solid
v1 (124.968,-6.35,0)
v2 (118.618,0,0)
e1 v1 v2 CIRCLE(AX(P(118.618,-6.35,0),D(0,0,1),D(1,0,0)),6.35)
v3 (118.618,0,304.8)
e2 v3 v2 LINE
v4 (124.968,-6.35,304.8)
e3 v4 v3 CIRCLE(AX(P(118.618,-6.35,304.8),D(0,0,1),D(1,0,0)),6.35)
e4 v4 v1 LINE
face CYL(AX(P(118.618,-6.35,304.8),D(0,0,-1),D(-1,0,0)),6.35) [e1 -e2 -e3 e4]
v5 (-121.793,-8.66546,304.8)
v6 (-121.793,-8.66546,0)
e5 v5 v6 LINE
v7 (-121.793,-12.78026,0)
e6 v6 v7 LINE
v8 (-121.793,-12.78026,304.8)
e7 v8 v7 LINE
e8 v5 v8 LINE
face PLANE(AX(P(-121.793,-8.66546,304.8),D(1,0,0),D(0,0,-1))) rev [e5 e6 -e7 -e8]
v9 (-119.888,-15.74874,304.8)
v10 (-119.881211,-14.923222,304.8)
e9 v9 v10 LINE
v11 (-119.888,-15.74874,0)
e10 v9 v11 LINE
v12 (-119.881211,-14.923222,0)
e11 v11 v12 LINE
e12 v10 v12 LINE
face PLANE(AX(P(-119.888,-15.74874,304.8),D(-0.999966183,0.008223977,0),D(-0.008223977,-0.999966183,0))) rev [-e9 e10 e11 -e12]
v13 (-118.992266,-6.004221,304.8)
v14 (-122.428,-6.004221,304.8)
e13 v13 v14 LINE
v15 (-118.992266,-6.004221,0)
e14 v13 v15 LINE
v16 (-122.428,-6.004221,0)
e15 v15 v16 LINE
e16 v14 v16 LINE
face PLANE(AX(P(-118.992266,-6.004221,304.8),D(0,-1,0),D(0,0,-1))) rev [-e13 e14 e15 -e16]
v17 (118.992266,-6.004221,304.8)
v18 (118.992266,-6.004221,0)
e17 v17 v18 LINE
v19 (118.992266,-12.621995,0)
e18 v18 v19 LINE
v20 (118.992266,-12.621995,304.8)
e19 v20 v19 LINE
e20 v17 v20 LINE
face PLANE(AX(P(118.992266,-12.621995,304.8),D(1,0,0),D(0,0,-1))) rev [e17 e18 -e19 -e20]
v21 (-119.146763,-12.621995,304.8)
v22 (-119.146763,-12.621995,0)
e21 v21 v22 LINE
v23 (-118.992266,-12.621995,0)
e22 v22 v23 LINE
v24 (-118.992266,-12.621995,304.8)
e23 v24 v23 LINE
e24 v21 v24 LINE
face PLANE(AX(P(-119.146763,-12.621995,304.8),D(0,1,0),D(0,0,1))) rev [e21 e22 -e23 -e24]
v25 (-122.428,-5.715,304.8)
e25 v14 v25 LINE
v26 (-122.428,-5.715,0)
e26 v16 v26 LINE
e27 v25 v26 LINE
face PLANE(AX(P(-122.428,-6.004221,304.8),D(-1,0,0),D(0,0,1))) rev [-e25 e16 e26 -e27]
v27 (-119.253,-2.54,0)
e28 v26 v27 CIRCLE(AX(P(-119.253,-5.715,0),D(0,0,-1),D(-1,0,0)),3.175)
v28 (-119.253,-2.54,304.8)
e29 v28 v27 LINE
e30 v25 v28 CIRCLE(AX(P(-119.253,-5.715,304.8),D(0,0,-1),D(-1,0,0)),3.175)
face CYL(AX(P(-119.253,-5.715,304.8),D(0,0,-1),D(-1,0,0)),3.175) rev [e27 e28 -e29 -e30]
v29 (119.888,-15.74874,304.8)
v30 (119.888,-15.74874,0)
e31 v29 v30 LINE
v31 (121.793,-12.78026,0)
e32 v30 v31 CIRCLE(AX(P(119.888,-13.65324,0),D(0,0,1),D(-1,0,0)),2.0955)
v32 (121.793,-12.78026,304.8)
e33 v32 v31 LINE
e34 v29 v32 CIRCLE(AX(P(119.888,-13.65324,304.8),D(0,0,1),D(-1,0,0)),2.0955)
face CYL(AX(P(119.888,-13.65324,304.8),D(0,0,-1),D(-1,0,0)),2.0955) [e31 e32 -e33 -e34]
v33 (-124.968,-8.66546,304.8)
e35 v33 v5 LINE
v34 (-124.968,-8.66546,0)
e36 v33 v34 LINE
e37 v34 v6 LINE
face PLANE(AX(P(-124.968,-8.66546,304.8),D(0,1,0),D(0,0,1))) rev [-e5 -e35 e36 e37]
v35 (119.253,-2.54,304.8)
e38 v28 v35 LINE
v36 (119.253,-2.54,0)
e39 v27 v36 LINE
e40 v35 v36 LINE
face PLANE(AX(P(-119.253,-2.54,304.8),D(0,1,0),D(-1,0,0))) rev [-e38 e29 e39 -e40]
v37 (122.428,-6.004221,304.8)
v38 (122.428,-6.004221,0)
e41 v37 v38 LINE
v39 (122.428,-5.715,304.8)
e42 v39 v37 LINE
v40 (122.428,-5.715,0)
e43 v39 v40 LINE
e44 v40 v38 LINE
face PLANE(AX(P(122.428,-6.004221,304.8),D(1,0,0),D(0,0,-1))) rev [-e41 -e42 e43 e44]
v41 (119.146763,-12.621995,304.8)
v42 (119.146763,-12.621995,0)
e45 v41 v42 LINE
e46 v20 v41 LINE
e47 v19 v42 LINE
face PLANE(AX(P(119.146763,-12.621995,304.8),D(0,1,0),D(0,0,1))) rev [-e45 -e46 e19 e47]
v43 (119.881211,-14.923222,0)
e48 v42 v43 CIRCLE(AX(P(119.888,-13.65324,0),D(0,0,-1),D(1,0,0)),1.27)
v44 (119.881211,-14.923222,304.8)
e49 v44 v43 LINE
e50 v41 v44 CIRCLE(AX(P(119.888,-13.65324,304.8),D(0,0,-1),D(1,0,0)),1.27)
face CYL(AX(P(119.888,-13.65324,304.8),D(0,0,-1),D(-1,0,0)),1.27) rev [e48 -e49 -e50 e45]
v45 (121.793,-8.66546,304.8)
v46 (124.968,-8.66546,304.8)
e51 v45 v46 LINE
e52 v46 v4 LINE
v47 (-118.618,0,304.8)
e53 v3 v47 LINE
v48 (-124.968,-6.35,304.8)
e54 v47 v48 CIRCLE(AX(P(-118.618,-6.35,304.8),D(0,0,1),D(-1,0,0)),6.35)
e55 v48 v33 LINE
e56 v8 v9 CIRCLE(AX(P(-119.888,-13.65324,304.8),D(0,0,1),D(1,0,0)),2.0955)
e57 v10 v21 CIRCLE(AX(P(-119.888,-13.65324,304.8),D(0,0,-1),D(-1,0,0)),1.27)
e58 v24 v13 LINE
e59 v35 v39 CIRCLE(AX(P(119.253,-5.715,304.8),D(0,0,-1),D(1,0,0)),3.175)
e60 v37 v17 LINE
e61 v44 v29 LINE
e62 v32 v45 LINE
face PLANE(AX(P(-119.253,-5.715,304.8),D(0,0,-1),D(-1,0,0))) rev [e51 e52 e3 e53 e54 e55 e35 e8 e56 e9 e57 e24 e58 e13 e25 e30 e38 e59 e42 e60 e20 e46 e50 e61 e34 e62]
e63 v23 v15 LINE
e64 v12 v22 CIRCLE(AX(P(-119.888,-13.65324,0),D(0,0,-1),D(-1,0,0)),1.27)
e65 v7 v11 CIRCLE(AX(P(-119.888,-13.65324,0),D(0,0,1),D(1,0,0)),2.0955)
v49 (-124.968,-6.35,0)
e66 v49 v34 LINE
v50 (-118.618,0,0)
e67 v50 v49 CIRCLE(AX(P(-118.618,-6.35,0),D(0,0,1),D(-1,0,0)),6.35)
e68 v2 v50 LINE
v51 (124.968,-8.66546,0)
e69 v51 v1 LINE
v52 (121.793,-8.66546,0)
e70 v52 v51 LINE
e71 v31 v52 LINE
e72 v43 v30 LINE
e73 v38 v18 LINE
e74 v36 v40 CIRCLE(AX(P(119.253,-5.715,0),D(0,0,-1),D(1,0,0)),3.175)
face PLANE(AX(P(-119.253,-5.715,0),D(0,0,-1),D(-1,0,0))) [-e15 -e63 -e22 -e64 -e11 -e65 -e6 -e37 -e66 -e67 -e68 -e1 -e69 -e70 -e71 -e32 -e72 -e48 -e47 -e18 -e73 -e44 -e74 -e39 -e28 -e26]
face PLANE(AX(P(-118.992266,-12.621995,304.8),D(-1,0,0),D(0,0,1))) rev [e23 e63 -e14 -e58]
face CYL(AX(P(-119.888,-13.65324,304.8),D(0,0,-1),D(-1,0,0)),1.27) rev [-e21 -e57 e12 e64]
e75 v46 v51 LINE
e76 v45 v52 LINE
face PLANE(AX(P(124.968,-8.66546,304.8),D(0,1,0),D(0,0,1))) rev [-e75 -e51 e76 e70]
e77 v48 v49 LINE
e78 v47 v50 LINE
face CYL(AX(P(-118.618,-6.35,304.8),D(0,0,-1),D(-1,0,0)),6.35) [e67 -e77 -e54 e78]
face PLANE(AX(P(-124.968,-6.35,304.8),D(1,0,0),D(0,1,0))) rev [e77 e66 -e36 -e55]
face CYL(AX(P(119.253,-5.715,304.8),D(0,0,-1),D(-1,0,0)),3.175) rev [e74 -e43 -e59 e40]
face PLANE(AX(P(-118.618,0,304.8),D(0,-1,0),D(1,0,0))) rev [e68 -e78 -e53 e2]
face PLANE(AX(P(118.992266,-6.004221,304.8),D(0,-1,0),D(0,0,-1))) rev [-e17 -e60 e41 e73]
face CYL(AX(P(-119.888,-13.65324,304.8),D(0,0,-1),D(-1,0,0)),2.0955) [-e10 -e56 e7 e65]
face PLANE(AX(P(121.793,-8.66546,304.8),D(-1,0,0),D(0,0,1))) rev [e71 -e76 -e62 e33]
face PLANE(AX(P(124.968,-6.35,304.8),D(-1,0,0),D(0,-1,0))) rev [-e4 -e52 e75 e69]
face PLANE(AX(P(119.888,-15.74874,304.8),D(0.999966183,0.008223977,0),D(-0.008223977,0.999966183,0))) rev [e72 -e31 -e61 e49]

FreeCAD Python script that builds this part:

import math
import FreeCAD as App
import Part
import Sketcher
Q = App.Units.Quantity

doc = App.newDocument("Part")
body = doc.addObject("PartDesign::Body", "Body")

# Sketch on XY plane
sketch1 = body.newObject("Sketcher::SketchObject", "Sketch")
sketch1.AttachmentSupport = (doc.getObject("XY_Plane"), [""])
sketch1.MapMode = "FlatFace"
sketch1.addGeometry([
    Part.LineSegment(App.Vector(-119.888, -15.74874, 0), App.Vector(-119.881211, -14.923222, 0)),  # 0
    Part.ArcOfCircle(Part.Circle(App.Vector(-119.888, -13.65324, 0), App.Vector(0, 0, 1), 1.27), math.radians(54.292223), math.radians(270.306298)),  # 1
    Part.LineSegment(App.Vector(-119.146763, -12.621995, 0), App.Vector(-118.992266, -12.621995, 0)),  # 2
    Part.LineSegment(App.Vector(-118.992266, -12.621995, 0), App.Vector(-118.992266, -6.004221, 0)),  # 3
    Part.LineSegment(App.Vector(-118.992266, -6.004221, 0), App.Vector(-122.428, -6.004221, 0)),  # 4
    Part.LineSegment(App.Vector(-122.428, -6.004221, 0), App.Vector(-122.428, -5.715, 0)),  # 5
    Part.ArcOfCircle(Part.Circle(App.Vector(-119.253, -5.715, 0), App.Vector(0, 0, 1), 3.175), math.radians(90), math.radians(180)),  # 6
    Part.LineSegment(App.Vector(-119.253, -2.54, 0), App.Vector(119.253, -2.54, 0)),  # 7
    Part.ArcOfCircle(Part.Circle(App.Vector(119.253, -5.715, 0), App.Vector(0, 0, 1), 3.175), math.radians(0), math.radians(90)),  # 8
    Part.LineSegment(App.Vector(122.428, -5.715, 0), App.Vector(122.428, -6.004221, 0)),  # 9
    Part.LineSegment(App.Vector(122.428, -6.004221, 0), App.Vector(118.992266, -6.004221, 0)),  # 10
    Part.LineSegment(App.Vector(118.992266, -6.004221, 0), App.Vector(118.992266, -12.621995, 0)),  # 11
    Part.LineSegment(App.Vector(118.992266, -12.621995, 0), App.Vector(119.146763, -12.621995, 0)),  # 12
    Part.ArcOfCircle(Part.Circle(App.Vector(119.888, -13.65324, 0), App.Vector(0, 0, 1), 1.27), math.radians(-90.306298), math.radians(125.707777)),  # 13
    Part.LineSegment(App.Vector(119.881211, -14.923222, 0), App.Vector(119.888, -15.74874, 0)),  # 14
    Part.ArcOfCircle(Part.Circle(App.Vector(119.888, -13.65324, 0), App.Vector(0, 0, 1), 2.0955), math.radians(-90), math.radians(24.619977)),  # 15
    Part.LineSegment(App.Vector(121.793, -12.78026, 0), App.Vector(121.793, -8.66546, 0)),  # 16
    Part.LineSegment(App.Vector(121.793, -8.66546, 0), App.Vector(124.968, -8.66546, 0)),  # 17
    Part.LineSegment(App.Vector(124.968, -8.66546, 0), App.Vector(124.968, -6.35, 0)),  # 18
    Part.ArcOfCircle(Part.Circle(App.Vector(118.618, -6.35, 0), App.Vector(0, 0, 1), 6.35), math.radians(0), math.radians(90)),  # 19
    Part.LineSegment(App.Vector(118.618, 0, 0), App.Vector(-118.618, 0, 0)),  # 20
    Part.ArcOfCircle(Part.Circle(App.Vector(-118.618, -6.35, 0), App.Vector(0, 0, 1), 6.35), math.radians(90), math.radians(180)),  # 21
    Part.LineSegment(App.Vector(-124.968, -6.35, 0), App.Vector(-124.968, -8.66546, 0)),  # 22
    Part.LineSegment(App.Vector(-124.968, -8.66546, 0), App.Vector(-121.793, -8.66546, 0)),  # 23
    Part.LineSegment(App.Vector(-121.793, -8.66546, 0), App.Vector(-121.793, -12.78026, 0)),  # 24
    Part.ArcOfCircle(Part.Circle(App.Vector(-119.888, -13.65324, 0), App.Vector(0, 0, 1), 2.0955), math.radians(155.380023), math.radians(270)),  # 25
], False)
sketch1.addConstraint([
    Sketcher.Constraint("Coincident", 0, 2, 1, 2),
    Sketcher.Constraint("Coincident", 1, 1, 2, 1),
    Sketcher.Constraint("Coincident", 2, 2, 3, 1),
    Sketcher.Constraint("Coincident", 3, 2, 4, 1),
    Sketcher.Constraint("Coincident", 4, 2, 5, 1),
    Sketcher.Constraint("Tangent", 5, 2, 6, 2),
    Sketcher.Constraint("Tangent", 6, 1, 7, 1),
    Sketcher.Constraint("Tangent", 7, 2, 8, 2),
    Sketcher.Constraint("Tangent", 8, 1, 9, 1),
    Sketcher.Constraint("Coincident", 9, 2, 10, 1),
    Sketcher.Constraint("Coincident", 10, 2, 11, 1),
    Sketcher.Constraint("Coincident", 11, 2, 12, 1),
    Sketcher.Constraint("Coincident", 12, 2, 13, 2),
    Sketcher.Constraint("Coincident", 13, 1, 14, 1),
    Sketcher.Constraint("Coincident", 14, 2, 15, 1),
    Sketcher.Constraint("Coincident", 15, 2, 16, 1),
    Sketcher.Constraint("Coincident", 16, 2, 17, 1),
    Sketcher.Constraint("Coincident", 17, 2, 18, 1),
    Sketcher.Constraint("Tangent", 18, 2, 19, 1),
    Sketcher.Constraint("Tangent", 19, 2, 20, 1),
    Sketcher.Constraint("Tangent", 20, 2, 21, 1),
    Sketcher.Constraint("Tangent", 21, 2, 22, 1),
    Sketcher.Constraint("Coincident", 22, 2, 23, 1),
    Sketcher.Constraint("Coincident", 23, 2, 24, 1),
    Sketcher.Constraint("Coincident", 24, 2, 25, 1),
    Sketcher.Constraint("Coincident", 25, 2, 0, 1),
    Sketcher.Constraint("Horizontal", 2),
    Sketcher.Constraint("Vertical", 3),
    Sketcher.Constraint("Horizontal", 4),
    Sketcher.Constraint("Vertical", 5),
    Sketcher.Constraint("Horizontal", 7),
    Sketcher.Constraint("Vertical", 9),
    Sketcher.Constraint("Horizontal", 10),
    Sketcher.Constraint("Vertical", 11),
    Sketcher.Constraint("Horizontal", 12),
    Sketcher.Constraint("Vertical", 16),
    Sketcher.Constraint("Horizontal", 17),
    Sketcher.Constraint("Vertical", 18),
    Sketcher.Constraint("Horizontal", 20),
    Sketcher.Constraint("Vertical", 22),
    Sketcher.Constraint("Horizontal", 23),
    Sketcher.Constraint("Vertical", 24),
    Sketcher.Constraint("Coincident", 15, 3, 13, 3),
    Sketcher.Constraint("Coincident", 25, 3, 1, 3),
    Sketcher.Constraint("Equal", 6, 8),
    Sketcher.Constraint("Equal", 1, 13),
    Sketcher.Constraint("Equal", 19, 21),
    Sketcher.Constraint("Equal", 15, 25),
    Sketcher.Constraint("Symmetric", 19, 2, 20, 2, -1, 1),
    Sketcher.Constraint("Symmetric", 1, 3, 13, 3, -2),
    Sketcher.Constraint("Symmetric", 4, 2, 9, 2, -2),
    Sketcher.Constraint("Symmetric", 2, 2, 11, 2, -2),
    Sketcher.Constraint("Symmetric", 16, 2, 23, 2, -2),
    Sketcher.Constraint("Horizontal", 0, 2, 13, 1),
    Sketcher.Constraint("Vertical", 15, 3, 14, 2),
    Sketcher.Constraint("Vertical", 1, 3, 25, 2),
    Sketcher.Constraint("Radius", 1, Q("0.05 in")),
    Sketcher.Constraint("Radius", 19, Q("0.25 in")),
    Sketcher.Constraint("Radius", 6, Q("0.125 in")),
    Sketcher.Constraint("DistanceX", 7, 1, 7, 2, Q("9.39 in")),
    Sketcher.Constraint("DistanceX", 20, 2, 20, 1, Q("9.34 in")),
    Sketcher.Constraint("DistanceY", 6, 1, -1, 1, Q("0.1 in")),
    Sketcher.Constraint("Radius", 15, Q("0.0825 in")),
    Sketcher.Constraint("DistanceX", 15, 3, 8, 1, Q("0.1 in")),
    Sketcher.Constraint("DistanceX", 8, 3, 16, 2, Q("0.1 in")),
    Sketcher.Constraint("DistanceY", 16, 1, 16, 2, Q("0.162 in")),
    Sketcher.Constraint("DistanceY", 5, 1, 5, 2, Q("0.289221 mm")),
    Sketcher.Constraint("DistanceY", 18, 1, 18, 2, Q("2.31546 mm")),
    Sketcher.Constraint("DistanceX", 2, 1, 2, 2, Q("0.154496 mm")),
    Sketcher.Constraint("DistanceX", 4, 2, 4, 1, Q("3.435734 mm")),
    Sketcher.Constraint("DistanceX", 0, 2, -1, 1, Q("119.881211 mm")),
])
pad1 = body.newObject("PartDesign::Pad", "Pad")
pad1.Profile = sketch1
pad1.Length = Q("12 in")

doc.recompute()
